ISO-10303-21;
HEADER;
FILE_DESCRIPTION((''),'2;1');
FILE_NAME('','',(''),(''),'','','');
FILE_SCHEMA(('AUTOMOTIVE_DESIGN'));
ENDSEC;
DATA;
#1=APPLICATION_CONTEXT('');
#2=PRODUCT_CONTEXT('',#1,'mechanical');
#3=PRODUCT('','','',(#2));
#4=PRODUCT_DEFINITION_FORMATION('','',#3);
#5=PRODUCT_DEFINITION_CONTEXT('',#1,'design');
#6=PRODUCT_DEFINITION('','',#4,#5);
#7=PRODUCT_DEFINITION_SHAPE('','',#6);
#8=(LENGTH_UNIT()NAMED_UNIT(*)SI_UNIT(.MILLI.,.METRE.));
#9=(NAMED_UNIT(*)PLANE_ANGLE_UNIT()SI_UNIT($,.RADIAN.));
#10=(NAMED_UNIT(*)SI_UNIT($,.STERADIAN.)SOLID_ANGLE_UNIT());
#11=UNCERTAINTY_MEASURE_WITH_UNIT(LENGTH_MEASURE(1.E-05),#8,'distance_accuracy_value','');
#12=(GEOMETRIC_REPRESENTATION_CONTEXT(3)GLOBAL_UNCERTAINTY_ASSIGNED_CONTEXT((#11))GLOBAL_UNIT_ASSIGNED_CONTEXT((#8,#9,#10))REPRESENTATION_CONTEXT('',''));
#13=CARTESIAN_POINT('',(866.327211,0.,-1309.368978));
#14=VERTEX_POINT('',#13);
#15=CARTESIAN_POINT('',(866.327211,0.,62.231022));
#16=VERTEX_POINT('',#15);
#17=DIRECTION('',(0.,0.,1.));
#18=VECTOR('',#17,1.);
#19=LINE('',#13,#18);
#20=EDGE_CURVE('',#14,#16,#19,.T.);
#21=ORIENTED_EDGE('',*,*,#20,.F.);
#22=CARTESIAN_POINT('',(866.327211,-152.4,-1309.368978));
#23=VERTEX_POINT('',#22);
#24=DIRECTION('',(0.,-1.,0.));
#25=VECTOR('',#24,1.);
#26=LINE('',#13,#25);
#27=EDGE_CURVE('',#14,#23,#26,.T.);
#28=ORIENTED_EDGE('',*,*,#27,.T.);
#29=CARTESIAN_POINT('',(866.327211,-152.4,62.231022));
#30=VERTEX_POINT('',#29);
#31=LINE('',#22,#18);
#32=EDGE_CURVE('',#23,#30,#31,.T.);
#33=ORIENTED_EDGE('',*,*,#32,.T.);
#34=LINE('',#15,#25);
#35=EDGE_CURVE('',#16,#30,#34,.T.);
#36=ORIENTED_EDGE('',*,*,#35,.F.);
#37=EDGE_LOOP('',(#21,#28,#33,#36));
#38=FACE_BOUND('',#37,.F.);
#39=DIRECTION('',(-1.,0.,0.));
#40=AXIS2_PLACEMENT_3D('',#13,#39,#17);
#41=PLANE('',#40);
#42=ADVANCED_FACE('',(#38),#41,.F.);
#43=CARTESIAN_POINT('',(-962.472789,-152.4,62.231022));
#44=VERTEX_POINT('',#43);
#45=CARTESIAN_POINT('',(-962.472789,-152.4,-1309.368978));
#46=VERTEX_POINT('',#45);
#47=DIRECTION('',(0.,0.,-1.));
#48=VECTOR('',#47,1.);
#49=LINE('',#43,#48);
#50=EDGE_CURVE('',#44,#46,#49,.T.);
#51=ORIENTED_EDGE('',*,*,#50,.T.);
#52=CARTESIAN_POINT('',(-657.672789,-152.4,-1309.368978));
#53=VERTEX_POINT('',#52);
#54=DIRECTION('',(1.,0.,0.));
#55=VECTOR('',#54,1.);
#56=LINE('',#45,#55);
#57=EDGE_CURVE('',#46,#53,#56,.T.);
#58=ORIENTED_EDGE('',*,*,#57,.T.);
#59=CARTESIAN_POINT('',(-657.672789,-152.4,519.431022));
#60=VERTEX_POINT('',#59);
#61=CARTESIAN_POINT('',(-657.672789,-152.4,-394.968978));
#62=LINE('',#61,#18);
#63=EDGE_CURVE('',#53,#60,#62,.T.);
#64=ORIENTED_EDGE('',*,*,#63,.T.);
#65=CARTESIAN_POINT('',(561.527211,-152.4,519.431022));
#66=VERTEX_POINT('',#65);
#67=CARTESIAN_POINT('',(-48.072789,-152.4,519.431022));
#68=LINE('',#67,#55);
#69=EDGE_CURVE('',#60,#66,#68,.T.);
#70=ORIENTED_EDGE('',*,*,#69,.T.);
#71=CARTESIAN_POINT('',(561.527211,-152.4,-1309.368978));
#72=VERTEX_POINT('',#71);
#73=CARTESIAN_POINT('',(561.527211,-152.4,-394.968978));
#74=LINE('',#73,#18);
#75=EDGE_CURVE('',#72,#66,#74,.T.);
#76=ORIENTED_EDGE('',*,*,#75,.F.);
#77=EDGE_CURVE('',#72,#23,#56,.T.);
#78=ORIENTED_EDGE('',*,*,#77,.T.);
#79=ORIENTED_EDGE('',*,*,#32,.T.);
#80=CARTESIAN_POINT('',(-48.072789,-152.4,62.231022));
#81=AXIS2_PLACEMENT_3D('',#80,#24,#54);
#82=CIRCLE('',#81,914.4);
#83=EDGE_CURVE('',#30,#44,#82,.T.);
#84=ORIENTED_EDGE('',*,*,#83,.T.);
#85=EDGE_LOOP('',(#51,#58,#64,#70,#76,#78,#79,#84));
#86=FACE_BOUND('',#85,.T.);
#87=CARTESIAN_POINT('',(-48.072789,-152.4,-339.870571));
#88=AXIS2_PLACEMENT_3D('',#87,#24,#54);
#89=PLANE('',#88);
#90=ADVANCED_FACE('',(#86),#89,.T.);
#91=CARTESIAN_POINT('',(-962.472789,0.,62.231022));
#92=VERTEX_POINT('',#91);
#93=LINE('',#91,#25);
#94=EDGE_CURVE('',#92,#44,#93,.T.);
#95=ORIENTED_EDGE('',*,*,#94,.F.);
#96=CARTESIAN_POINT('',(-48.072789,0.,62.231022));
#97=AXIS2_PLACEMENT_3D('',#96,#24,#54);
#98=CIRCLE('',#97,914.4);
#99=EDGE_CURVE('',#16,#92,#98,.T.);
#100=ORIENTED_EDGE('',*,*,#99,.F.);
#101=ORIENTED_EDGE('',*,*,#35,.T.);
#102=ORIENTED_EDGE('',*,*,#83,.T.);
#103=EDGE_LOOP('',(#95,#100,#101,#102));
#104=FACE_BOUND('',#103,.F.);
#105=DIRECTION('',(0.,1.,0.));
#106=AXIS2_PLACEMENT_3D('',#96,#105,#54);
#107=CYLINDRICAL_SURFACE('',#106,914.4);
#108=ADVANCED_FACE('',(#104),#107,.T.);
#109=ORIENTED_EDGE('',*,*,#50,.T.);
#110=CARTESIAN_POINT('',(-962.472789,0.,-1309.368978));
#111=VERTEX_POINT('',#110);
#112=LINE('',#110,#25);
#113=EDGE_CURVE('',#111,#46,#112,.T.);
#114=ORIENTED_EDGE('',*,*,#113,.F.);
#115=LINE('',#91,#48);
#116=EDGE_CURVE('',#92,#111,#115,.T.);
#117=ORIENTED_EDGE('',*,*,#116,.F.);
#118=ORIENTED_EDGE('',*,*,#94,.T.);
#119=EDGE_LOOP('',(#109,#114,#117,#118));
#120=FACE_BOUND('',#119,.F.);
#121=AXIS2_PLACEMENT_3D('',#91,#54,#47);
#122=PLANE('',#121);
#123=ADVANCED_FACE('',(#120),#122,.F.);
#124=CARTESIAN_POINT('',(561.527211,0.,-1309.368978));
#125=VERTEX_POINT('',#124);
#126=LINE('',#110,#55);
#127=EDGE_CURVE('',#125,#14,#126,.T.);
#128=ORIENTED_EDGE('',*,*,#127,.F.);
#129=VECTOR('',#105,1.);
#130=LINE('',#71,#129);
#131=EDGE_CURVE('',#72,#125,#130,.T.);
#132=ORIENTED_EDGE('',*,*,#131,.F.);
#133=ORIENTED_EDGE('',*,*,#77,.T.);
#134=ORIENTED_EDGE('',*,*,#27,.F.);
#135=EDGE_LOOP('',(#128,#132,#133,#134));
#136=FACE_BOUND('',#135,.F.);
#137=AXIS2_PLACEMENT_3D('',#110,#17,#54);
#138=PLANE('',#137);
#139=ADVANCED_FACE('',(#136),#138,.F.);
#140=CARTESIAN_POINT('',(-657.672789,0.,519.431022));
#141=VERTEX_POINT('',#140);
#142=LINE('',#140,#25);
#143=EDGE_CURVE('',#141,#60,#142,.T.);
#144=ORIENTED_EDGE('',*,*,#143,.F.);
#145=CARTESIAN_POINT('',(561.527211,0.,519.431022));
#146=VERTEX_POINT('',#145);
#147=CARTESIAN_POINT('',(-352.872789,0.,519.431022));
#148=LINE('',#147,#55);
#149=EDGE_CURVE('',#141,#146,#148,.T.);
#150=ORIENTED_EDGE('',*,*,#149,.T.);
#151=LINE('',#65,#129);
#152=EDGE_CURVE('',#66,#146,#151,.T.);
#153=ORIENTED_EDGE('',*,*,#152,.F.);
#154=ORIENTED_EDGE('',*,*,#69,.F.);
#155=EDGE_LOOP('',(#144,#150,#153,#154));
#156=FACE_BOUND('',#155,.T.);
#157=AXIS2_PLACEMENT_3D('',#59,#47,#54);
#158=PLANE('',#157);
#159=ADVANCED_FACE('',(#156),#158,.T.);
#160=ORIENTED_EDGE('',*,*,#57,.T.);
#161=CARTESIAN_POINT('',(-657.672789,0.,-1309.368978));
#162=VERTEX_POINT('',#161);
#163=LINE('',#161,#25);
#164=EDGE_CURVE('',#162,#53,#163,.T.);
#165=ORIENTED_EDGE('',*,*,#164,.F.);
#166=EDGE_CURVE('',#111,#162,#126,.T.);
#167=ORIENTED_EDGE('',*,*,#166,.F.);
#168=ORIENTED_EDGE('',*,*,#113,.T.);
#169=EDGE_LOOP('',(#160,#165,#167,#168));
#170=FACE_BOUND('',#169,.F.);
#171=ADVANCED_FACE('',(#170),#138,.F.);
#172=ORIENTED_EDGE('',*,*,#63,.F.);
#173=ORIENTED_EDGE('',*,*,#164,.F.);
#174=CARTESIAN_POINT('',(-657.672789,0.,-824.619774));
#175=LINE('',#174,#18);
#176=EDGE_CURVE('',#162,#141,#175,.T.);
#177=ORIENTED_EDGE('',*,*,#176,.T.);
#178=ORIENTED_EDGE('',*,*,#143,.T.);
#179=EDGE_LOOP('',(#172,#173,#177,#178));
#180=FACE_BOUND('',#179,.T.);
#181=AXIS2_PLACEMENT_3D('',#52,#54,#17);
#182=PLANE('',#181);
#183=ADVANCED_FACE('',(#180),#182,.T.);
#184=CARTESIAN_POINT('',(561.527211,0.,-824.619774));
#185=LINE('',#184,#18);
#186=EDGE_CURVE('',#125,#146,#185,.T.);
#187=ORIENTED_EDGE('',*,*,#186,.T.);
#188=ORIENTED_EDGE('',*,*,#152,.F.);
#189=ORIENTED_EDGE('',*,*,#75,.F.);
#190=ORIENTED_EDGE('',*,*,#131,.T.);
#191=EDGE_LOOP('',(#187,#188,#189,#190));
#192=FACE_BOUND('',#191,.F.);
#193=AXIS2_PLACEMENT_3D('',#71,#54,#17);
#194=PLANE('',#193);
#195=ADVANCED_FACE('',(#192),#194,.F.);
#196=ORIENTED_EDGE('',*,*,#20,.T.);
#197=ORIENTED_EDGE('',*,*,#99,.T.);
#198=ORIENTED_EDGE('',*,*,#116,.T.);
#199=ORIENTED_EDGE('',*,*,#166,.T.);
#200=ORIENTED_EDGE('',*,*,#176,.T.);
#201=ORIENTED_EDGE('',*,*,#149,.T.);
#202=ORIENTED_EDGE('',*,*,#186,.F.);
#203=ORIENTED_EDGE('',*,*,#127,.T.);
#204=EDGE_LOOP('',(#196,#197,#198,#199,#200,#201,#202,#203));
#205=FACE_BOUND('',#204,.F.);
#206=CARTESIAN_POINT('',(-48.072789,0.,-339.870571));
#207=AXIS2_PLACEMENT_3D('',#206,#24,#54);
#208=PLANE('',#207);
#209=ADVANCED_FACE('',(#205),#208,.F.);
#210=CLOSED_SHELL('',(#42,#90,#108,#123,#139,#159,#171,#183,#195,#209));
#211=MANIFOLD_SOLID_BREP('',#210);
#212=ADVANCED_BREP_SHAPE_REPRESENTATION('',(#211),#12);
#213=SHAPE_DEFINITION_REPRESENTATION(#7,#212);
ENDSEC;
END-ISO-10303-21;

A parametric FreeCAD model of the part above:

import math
import FreeCAD as App
import Part
import Sketcher
Q = App.Units.Quantity


def add_polygon(sketch, points):
    """Adds a closed chain of lines whose ends are joined by coincident constraints."""
    first, n = sketch.GeometryCount, len(points)
    for a, b in zip(points, points[1:] + points[:1]):
        sketch.addGeometry(Part.LineSegment(App.Vector(*a, 0), App.Vector(*b, 0)), False)
    for i in range(n):
        sketch.addConstraint(Sketcher.Constraint("Coincident", first + i, 2, first + (i + 1) % n, 1))

doc = App.newDocument("Part")
params = doc.addObject("Spreadsheet::Sheet", "Params")
for row, (alias, value) in enumerate([
    ("sketch1_radius", "36 in"),
    ("sketch1_height", "54 in"),
    ("pad1_length", "6 in"),
    ("sketch2_width", "48 in"),
    ("sketch2_height", "72 in"),
    ("pocket1_length", "1 in"),
    ("sketch3_width", "48 in"),
    ("sketch3_height", "72 in"),
], start=1):
    params.set(f"A{row}", alias)
    params.set(f"B{row}", "=" + value)
    params.setAlias(f"B{row}", alias)

body = doc.addObject("PartDesign::Body", "Body")

sketch1 = body.newObject("Sketcher::SketchObject", "Sketch")
sketch1.AttachmentSupport = (doc.getObject("XZ_Plane"), [""])
sketch1.MapMode = "FlatFace"
sketch1.addGeometry([
    Part.LineSegment(App.Vector(-962, 62, 0), App.Vector(-962, -1309, 0)),
    Part.LineSegment(App.Vector(-962, -1309, 0), App.Vector(866, -1309, 0)),
    Part.LineSegment(App.Vector(866, -1309, 0), App.Vector(866, 62, 0)),
    Part.ArcOfCircle(Part.Circle(App.Vector(-48, 62, 0), App.Vector(0, 0, 1), 914), math.radians(0), math.radians(180)),
], False)
sketch1.addConstraint([
    Sketcher.Constraint("Coincident", 0, 2, 1, 1),
    Sketcher.Constraint("Coincident", 1, 2, 2, 1),
    Sketcher.Constraint("Coincident", 2, 2, 3, 1),
    Sketcher.Constraint("Coincident", 3, 2, 0, 1),
    Sketcher.Constraint("Vertical", 0),
    Sketcher.Constraint("Horizontal", 1),
    Sketcher.Constraint("Vertical", 2),
    Sketcher.Constraint("Horizontal", 3, 3, 2, 2),
    Sketcher.Constraint("Equal", 0, 2),
    Sketcher.Constraint("Radius", 3, Q("36 in")),
    Sketcher.Constraint("DistanceY", 0, 2, 0, 1, Q("54 in")),
    Sketcher.Constraint("DistanceX", 3, 3, -1, 1, Q("48.072789 mm")),
    Sketcher.Constraint("DistanceY", 0, 2, -1, 1, Q("1309.368978 mm")),
])
sketch1.setExpression("Constraints[9]", "Params.sketch1_radius")
sketch1.setExpression("Constraints[10]", "Params.sketch1_height")
pad1 = body.newObject("PartDesign::Pad", "Pad")
pad1.Profile = sketch1
pad1.setExpression("Length", "Params.pad1_length")

sketch2 = body.newObject("Sketcher::SketchObject", "Sketch001")
sketch2.AttachmentSupport = (doc.getObject("XZ_Plane"), [""])
sketch2.MapMode = "FlatFace"
sketch2.AttachmentOffset = App.Placement(App.Vector(0, 0, 6 * 25.4), App.Rotation())
add_polygon(sketch2, [(-658, 519), (-658, -1309), (562, -1309), (562, 519)])
sketch2.addConstraint([
    Sketcher.Constraint("Vertical", 0),
    Sketcher.Constraint("Horizontal", 1),
    Sketcher.Constraint("Vertical", 2),
    Sketcher.Constraint("Horizontal", 3),
    Sketcher.Constraint("DistanceX", 1, 1, 1, 2, Q("48 in")),
    Sketcher.Constraint("DistanceY", 0, 2, 0, 1, Q("72 in")),
    Sketcher.Constraint("DistanceX", 0, 2, -1, 1, Q("657.672789 mm")),
    Sketcher.Constraint("DistanceY", 0, 2, -1, 1, Q("1309.368978 mm")),
])
sketch2.setExpression("Constraints[8]", "Params.sketch2_width")
sketch2.setExpression("Constraints[9]", "Params.sketch2_height")
pocket1 = body.newObject("PartDesign::Pocket", "Pocket")
pocket1.Profile = sketch2
pocket1.setExpression("Length", "Params.pocket1_length")

sketch3 = body.newObject("Sketcher::SketchObject", "Sketch002")
sketch3.AttachmentSupport = (doc.getObject("XZ_Plane"), [""])
sketch3.MapMode = "FlatFace"
sketch3.AttachmentOffset = App.Placement(App.Vector(0, 0, 6 * 25.4), App.Rotation())
add_polygon(sketch3, [(-658, 519), (-658, -1309), (562, -1309), (562, 519)])
sketch3.addConstraint([
    Sketcher.Constraint("Vertical", 0),
    Sketcher.Constraint("Horizontal", 1),
    Sketcher.Constraint("Vertical", 2),
    Sketcher.Constraint("Horizontal", 3),
    Sketcher.Constraint("DistanceX", 1, 1, 1, 2, Q("48 in")),
    Sketcher.Constraint("DistanceY", 0, 2, 0, 1, Q("72 in")),
    Sketcher.Constraint("DistanceX", 0, 2, -1, 1, Q("657.672789 mm")),
    Sketcher.Constraint("DistanceY", 0, 2, -1, 1, Q("1309.368978 mm")),
])
sketch3.setExpression("Constraints[8]", "Params.sketch3_width")
sketch3.setExpression("Constraints[9]", "Params.sketch3_height")
pocket2 = body.newObject("PartDesign::Pocket", "Pocket001")
pocket2.Profile = sketch3
pocket2.Type = "ThroughAll"

doc.recompute()
